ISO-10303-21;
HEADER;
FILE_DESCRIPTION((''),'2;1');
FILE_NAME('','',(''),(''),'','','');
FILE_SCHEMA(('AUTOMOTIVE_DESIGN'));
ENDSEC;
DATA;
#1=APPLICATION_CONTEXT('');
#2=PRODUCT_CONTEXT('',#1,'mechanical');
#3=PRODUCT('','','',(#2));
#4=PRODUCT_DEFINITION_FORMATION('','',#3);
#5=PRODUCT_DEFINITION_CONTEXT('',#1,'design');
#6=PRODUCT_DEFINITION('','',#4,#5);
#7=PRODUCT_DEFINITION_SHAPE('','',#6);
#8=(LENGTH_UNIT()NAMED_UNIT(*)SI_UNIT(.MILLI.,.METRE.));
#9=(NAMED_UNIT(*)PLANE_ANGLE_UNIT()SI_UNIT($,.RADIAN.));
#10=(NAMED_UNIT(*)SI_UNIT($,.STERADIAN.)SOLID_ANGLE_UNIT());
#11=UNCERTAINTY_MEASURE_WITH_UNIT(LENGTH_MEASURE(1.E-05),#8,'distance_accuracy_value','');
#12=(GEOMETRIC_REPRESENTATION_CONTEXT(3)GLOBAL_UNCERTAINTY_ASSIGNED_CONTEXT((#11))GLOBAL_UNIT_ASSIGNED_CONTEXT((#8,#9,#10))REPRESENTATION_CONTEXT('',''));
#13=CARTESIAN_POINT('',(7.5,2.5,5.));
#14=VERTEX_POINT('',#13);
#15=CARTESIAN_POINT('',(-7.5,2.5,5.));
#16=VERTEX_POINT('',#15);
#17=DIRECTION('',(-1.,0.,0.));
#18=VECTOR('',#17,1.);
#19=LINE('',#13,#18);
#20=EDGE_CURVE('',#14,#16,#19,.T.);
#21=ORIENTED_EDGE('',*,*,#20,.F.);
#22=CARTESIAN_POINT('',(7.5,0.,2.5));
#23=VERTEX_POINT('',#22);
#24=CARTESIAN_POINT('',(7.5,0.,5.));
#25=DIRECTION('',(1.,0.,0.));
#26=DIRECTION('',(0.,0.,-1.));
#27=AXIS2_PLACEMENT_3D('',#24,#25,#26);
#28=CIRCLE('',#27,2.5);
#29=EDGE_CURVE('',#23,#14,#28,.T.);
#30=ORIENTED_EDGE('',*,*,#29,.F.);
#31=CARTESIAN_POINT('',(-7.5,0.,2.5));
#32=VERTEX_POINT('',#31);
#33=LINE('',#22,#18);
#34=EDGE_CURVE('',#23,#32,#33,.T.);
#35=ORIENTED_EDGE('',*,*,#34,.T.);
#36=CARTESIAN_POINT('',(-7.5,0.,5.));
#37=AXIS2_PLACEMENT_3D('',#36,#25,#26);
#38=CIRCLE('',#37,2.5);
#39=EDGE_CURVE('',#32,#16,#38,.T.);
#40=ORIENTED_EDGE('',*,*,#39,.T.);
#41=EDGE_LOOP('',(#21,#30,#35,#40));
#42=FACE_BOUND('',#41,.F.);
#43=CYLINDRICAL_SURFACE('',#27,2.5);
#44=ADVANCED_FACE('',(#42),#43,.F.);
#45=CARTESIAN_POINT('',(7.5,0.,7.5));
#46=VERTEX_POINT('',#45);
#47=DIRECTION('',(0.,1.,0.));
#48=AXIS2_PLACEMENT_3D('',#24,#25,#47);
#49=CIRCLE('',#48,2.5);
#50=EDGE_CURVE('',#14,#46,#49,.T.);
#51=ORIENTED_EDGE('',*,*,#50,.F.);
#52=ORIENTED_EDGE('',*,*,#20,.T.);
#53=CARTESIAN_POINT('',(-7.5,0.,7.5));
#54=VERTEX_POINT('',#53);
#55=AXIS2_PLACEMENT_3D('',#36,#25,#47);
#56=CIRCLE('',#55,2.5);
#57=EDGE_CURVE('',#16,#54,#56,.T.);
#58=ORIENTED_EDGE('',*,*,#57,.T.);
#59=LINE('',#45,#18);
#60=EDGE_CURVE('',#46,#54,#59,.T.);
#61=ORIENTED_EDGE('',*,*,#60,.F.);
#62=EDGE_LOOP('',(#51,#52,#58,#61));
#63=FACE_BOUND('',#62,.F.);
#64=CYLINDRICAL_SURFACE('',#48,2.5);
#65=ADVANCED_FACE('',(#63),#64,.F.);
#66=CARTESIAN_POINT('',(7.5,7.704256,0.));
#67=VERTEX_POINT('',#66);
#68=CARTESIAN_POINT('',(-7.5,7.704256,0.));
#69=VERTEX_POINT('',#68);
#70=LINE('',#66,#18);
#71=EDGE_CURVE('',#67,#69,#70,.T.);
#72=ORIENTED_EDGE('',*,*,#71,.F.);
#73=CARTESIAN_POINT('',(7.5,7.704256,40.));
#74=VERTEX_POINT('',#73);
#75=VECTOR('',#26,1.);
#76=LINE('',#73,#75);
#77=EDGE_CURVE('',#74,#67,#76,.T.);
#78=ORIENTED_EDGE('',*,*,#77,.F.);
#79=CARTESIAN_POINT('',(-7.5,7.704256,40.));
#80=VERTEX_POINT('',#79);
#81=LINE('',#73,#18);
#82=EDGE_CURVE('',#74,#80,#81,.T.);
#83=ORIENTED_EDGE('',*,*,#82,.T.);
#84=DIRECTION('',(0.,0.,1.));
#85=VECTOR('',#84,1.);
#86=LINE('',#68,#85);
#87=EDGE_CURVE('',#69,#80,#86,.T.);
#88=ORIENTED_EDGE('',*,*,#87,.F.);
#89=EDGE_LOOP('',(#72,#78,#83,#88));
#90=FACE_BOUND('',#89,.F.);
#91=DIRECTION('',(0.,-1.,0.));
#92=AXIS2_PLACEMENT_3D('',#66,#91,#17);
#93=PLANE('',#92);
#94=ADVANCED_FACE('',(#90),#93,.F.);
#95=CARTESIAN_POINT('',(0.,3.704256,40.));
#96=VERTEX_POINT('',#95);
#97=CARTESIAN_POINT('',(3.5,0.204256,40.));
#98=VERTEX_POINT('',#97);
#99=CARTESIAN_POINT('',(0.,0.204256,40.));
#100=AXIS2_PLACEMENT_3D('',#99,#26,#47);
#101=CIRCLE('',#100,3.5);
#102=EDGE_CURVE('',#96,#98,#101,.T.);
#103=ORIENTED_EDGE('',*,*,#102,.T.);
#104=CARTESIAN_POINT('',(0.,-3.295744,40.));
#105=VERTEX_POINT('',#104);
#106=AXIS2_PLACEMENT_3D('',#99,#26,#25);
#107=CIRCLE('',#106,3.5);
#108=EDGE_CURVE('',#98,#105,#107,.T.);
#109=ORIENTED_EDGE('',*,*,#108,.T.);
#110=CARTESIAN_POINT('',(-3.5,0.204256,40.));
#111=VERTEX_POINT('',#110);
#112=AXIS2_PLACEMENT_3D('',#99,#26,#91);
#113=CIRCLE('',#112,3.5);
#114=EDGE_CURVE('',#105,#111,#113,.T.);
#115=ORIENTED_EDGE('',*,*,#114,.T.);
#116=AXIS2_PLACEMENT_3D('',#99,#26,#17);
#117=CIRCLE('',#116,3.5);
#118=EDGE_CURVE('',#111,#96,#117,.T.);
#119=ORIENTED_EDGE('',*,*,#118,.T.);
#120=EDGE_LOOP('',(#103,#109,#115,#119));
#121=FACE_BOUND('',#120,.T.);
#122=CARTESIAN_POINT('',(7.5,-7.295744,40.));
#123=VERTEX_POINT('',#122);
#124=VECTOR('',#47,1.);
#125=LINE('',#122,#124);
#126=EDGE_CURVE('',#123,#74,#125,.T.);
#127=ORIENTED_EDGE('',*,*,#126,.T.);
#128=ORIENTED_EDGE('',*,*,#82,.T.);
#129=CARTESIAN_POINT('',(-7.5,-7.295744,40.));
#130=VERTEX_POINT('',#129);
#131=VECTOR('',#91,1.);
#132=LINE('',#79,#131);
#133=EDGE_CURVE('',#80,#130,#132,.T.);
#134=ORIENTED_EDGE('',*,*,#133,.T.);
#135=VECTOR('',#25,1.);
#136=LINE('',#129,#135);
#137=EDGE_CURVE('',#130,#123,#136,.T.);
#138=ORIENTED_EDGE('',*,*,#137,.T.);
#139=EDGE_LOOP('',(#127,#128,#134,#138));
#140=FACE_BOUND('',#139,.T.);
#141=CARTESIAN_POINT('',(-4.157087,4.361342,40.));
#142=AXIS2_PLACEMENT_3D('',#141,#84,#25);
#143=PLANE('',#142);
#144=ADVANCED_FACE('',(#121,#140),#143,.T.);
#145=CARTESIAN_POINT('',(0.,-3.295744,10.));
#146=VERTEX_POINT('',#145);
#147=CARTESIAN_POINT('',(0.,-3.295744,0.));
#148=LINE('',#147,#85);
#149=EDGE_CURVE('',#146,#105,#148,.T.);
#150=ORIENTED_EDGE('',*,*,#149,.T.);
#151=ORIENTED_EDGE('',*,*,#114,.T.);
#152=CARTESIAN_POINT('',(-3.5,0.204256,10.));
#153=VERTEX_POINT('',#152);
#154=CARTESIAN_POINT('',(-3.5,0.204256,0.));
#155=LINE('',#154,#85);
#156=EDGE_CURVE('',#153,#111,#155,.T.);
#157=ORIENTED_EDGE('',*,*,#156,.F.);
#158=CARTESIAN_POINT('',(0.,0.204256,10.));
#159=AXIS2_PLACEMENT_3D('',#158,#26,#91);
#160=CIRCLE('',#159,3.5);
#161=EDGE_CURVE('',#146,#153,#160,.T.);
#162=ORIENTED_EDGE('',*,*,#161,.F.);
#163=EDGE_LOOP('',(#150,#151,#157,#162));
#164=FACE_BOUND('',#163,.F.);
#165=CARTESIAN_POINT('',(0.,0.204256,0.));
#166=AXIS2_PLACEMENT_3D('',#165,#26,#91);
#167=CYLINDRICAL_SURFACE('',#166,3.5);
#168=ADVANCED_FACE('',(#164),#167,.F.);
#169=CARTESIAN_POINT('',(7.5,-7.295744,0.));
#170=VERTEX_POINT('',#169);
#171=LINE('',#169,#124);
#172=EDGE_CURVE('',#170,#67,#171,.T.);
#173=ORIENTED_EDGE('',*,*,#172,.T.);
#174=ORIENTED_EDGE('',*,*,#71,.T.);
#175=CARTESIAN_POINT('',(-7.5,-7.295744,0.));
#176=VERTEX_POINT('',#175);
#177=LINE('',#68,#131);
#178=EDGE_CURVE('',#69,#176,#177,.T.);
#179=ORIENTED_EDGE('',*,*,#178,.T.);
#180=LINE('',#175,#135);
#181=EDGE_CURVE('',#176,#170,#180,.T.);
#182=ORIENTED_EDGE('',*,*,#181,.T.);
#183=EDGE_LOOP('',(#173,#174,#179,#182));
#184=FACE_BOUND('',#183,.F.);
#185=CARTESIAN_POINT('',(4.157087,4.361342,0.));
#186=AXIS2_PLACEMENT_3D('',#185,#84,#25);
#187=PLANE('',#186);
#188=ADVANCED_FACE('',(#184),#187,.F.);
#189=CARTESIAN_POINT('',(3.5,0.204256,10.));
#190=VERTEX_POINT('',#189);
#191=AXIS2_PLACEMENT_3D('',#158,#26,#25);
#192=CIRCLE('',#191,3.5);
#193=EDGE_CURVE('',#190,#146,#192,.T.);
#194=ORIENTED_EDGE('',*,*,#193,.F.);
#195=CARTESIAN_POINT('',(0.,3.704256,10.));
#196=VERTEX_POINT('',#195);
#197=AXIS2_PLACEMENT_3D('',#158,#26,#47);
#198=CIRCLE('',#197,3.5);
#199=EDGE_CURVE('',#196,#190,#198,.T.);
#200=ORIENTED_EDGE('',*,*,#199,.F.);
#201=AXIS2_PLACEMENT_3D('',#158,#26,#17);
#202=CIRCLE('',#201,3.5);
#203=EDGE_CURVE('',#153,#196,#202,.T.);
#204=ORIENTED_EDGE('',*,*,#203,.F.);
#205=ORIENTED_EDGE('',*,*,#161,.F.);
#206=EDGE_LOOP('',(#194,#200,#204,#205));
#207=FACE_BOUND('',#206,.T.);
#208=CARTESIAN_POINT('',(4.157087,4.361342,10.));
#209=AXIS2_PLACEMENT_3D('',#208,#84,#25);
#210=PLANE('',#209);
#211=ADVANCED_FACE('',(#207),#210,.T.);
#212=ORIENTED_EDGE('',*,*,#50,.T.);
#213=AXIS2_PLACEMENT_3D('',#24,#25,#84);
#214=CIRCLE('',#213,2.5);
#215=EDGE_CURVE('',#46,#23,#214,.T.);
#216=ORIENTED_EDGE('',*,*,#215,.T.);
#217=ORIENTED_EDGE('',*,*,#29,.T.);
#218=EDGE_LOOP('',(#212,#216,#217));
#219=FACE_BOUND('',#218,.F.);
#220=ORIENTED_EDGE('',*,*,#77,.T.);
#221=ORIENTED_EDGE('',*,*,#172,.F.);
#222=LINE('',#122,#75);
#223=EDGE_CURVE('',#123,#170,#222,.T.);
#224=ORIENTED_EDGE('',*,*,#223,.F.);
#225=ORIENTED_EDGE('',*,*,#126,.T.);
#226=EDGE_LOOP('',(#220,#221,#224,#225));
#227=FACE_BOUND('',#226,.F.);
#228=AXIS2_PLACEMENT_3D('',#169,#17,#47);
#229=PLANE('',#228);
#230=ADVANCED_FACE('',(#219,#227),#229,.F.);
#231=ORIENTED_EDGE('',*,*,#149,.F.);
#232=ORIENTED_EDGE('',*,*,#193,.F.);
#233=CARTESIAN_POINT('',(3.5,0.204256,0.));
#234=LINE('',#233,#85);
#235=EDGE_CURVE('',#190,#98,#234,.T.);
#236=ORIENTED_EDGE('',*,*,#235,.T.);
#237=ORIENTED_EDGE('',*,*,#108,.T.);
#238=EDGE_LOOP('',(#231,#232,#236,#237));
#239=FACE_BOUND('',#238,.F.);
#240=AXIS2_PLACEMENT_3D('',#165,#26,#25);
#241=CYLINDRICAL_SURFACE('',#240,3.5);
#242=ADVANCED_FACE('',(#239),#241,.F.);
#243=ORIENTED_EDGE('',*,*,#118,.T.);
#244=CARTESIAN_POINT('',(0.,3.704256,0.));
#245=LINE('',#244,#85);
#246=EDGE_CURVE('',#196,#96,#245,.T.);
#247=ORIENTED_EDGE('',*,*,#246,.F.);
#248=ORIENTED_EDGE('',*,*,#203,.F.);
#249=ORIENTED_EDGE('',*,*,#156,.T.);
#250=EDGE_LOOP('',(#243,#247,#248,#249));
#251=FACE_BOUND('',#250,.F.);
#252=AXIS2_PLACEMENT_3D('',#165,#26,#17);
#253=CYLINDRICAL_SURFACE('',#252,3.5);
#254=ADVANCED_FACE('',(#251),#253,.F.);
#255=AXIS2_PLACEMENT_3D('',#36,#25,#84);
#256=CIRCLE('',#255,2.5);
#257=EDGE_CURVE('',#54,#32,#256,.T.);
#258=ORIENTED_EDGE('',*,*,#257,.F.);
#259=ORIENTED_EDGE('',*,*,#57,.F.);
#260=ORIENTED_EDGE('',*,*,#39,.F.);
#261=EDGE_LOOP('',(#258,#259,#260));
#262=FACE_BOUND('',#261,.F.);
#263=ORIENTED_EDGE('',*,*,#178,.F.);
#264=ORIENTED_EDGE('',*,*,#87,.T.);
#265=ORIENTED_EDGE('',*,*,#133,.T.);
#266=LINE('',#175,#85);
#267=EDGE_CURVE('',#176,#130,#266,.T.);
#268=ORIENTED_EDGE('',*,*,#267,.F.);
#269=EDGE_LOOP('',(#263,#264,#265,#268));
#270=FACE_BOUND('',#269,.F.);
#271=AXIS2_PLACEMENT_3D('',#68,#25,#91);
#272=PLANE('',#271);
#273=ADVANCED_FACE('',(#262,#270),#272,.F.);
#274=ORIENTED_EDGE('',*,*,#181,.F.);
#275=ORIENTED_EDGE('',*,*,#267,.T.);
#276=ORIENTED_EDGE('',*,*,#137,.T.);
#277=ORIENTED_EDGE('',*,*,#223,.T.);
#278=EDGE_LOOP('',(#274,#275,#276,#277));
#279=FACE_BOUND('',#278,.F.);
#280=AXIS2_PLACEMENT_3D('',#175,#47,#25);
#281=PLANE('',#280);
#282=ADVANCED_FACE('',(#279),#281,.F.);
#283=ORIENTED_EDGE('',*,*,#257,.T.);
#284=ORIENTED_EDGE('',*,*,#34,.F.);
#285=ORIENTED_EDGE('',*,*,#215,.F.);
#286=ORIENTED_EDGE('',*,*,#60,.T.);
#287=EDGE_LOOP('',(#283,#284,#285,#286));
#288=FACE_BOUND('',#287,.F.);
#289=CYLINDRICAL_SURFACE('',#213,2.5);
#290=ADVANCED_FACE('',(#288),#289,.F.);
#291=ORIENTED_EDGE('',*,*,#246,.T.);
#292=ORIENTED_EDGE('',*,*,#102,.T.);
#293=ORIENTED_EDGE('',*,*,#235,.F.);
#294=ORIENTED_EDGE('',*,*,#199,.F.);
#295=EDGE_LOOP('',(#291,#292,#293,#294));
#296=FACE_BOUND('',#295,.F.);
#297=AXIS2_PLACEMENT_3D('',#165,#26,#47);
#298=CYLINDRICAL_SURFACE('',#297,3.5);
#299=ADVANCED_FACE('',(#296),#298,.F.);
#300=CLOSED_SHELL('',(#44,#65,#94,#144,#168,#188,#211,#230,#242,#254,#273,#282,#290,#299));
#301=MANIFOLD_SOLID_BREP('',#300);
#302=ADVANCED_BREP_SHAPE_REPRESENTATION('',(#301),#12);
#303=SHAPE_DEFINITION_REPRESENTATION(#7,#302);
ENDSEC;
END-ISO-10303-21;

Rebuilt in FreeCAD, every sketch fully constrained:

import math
import FreeCAD as App
import Part
import Sketcher
from FreeCAD import Vector
Q = App.Units.Quantity

doc = App.newDocument("Part")
params = doc.addObject("Spreadsheet::Sheet", "Params")
for row, (alias, value) in enumerate([
    ("sketch1_width", "15 mm"),
    ("pad1_length", "10 mm"),
    ("sketch2_radius", "3.5 mm"),
    ("sketch2_width", "15 mm"),
    ("pad2_length", "40 mm"),
    ("sketch3_radius", "2.5 mm"),
    ("pocket1_length", "15 mm"),
], start=1):
    params.set(f"A{row}", alias)
    params.set(f"B{row}", "=" + value)
    params.setAlias(f"B{row}", alias)

body = doc.addObject("PartDesign::Body", "Body")

sketch1 = body.newObject("Sketcher::SketchObject", "Sketch")
sketch1.AttachmentSupport = (doc.getObject("XY_Plane"), [""])
sketch1.MapMode = "FlatFace"
sketch1.addGeometry([
    Part.LineSegment(Vector(7.5, 7.704256, 0), Vector(-7.5, 7.704256, 0)),
    Part.LineSegment(Vector(-7.5, 7.704256, 0), Vector(-7.5, -7.295744, 0)),
    Part.LineSegment(Vector(-7.5, -7.295744, 0), Vector(7.5, -7.295744, 0)),
    Part.LineSegment(Vector(7.5, -7.295744, 0), Vector(7.5, 7.704256, 0)),
], False)
sketch1.addConstraint([
    Sketcher.Constraint("Coincident", 0, 2, 1, 1),
    Sketcher.Constraint("Coincident", 1, 2, 2, 1),
    Sketcher.Constraint("Coincident", 2, 2, 3, 1),
    Sketcher.Constraint("Coincident", 3, 2, 0, 1),
    Sketcher.Constraint("Horizontal", 0),
    Sketcher.Constraint("Vertical", 1),
    Sketcher.Constraint("Horizontal", 2),
    Sketcher.Constraint("Vertical", 3),
    Sketcher.Constraint("Equal", 2, 1),
    Sketcher.Constraint("DistanceX", 0, 2, 0, 1, Q("15 mm")),
    Sketcher.Constraint("DistanceX", 0, 2, -1, 1, Q("7.5 mm")),
    Sketcher.Constraint("DistanceY", -1, 1, 0, 2, Q("7.704256 mm")),
])
sketch1.setExpression("Constraints[9]", "Params.sketch1_width")
pad1 = body.newObject("PartDesign::Pad", "Pad")
pad1.Profile = sketch1
pad1.setExpression("Length", "Params.pad1_length")

sketch2 = body.newObject("Sketcher::SketchObject", "Sketch001")
sketch2.AttachmentSupport = (doc.getObject("XY_Plane"), [""])
sketch2.MapMode = "FlatFace"
sketch2.addGeometry([
    Part.LineSegment(Vector(-7.5, 7.704256, 0), Vector(-7.5, -7.295744, 0)),
    Part.LineSegment(Vector(-7.5, -7.295744, 0), Vector(7.5, -7.295744, 0)),
    Part.LineSegment(Vector(7.5, -7.295744, 0), Vector(7.5, 7.704256, 0)),
    Part.LineSegment(Vector(7.5, 7.704256, 0), Vector(-7.5, 7.704256, 0)),
    Part.ArcOfCircle(Part.Circle(Vector(0, 0.204256, 0), Vector(0, 0, 1), 3.5), math.radians(180), math.radians(270)),
    Part.ArcOfCircle(Part.Circle(Vector(0, 0.204256, 0), Vector(0, 0, 1), 3.5), math.radians(90), math.radians(180)),
    Part.ArcOfCircle(Part.Circle(Vector(0, 0.204256, 0), Vector(0, 0, 1), 3.5), math.radians(0), math.radians(90)),
    Part.ArcOfCircle(Part.Circle(Vector(0, 0.204256, 0), Vector(0, 0, 1), 3.5), math.radians(-90), math.radians(0)),
], False)
sketch2.addConstraint([
    Sketcher.Constraint("Coincident", 0, 2, 1, 1),
    Sketcher.Constraint("Coincident", 1, 2, 2, 1),
    Sketcher.Constraint("Coincident", 2, 2, 3, 1),
    Sketcher.Constraint("Coincident", 3, 2, 0, 1),
    Sketcher.Constraint("Tangent", 4, 1, 5, 2),
    Sketcher.Constraint("Tangent", 5, 1, 6, 2),
    Sketcher.Constraint("Tangent", 6, 1, 7, 2),
    Sketcher.Constraint("Tangent", 7, 1, 4, 2),
    Sketcher.Constraint("Vertical", 0),
    Sketcher.Constraint("Horizontal", 1),
    Sketcher.Constraint("Vertical", 2),
    Sketcher.Constraint("Horizontal", 3),
    Sketcher.Constraint("Equal", 4, 5),
    Sketcher.Constraint("Symmetric", 4, 1, 6, 1, -2),
    Sketcher.Constraint("PointOnObject", 5, 1, -2),
    Sketcher.Constraint("PointOnObject", 7, 1, -2),
    Sketcher.Constraint("Horizontal", 7, 3, 4, 1),
    Sketcher.Constraint("Equal", 3, 0),
    Sketcher.Constraint("Radius", 4, Q("3.5 mm")),
    Sketcher.Constraint("DistanceX", 1, 1, 1, 2, Q("15 mm")),
    Sketcher.Constraint("DistanceX", 0, 2, 4, 1, Q("4 mm")),
    Sketcher.Constraint("DistanceY", 0, 2, 4, 3, Q("7.5 mm")),
    Sketcher.Constraint("DistanceY", -1, 1, 4, 3, Q("0.204256 mm")),
])
sketch2.setExpression("Constraints[18]", "Params.sketch2_radius")
sketch2.setExpression("Constraints[19]", "Params.sketch2_width")
pad2 = body.newObject("PartDesign::Pad", "Pad001")
pad2.Profile = sketch2
pad2.setExpression("Length", "Params.pad2_length")

sketch3 = body.newObject("Sketcher::SketchObject", "Sketch002")
sketch3.AttachmentSupport = (doc.getObject("YZ_Plane"), [""])
sketch3.MapMode = "FlatFace"
sketch3.AttachmentOffset = App.Placement(Vector(0, 0, 7.5), App.Rotation())
sketch3.addGeometry([
    Part.ArcOfCircle(Part.Circle(Vector(0, 5, 0), Vector(0, 0, 1), 2.5), math.radians(90), math.radians(270)),
    Part.ArcOfCircle(Part.Circle(Vector(0, 5, 0), Vector(0, 0, 1), 2.5), math.radians(-90), math.radians(0)),
    Part.ArcOfCircle(Part.Circle(Vector(0, 5, 0), Vector(0, 0, 1), 2.5), math.radians(0), math.radians(90)),
], False)
sketch3.addConstraint([
    Sketcher.Constraint("Tangent", 0, 2, 1, 1),
    Sketcher.Constraint("Tangent", 1, 2, 2, 1),
    Sketcher.Constraint("Tangent", 2, 2, 0, 1),
    Sketcher.Constraint("PointOnObject", 0, 3, -2),
    Sketcher.Constraint("PointOnObject", 0, 2, -2),
    Sketcher.Constraint("PointOnObject", 2, 2, -2),
    Sketcher.Constraint("Horizontal", 2, 3, 1, 2),
    Sketcher.Constraint("Radius", 0, Q("2.5 mm")),
    Sketcher.Constraint("DistanceY", -1, 1, 0, 3, Q("5 mm")),
])
sketch3.setExpression("Constraints[7]", "Params.sketch3_radius")
pocket1 = body.newObject("PartDesign::Pocket", "Pocket")
pocket1.Profile = sketch3
pocket1.setExpression("Length", "Params.pocket1_length")

doc.recompute()
